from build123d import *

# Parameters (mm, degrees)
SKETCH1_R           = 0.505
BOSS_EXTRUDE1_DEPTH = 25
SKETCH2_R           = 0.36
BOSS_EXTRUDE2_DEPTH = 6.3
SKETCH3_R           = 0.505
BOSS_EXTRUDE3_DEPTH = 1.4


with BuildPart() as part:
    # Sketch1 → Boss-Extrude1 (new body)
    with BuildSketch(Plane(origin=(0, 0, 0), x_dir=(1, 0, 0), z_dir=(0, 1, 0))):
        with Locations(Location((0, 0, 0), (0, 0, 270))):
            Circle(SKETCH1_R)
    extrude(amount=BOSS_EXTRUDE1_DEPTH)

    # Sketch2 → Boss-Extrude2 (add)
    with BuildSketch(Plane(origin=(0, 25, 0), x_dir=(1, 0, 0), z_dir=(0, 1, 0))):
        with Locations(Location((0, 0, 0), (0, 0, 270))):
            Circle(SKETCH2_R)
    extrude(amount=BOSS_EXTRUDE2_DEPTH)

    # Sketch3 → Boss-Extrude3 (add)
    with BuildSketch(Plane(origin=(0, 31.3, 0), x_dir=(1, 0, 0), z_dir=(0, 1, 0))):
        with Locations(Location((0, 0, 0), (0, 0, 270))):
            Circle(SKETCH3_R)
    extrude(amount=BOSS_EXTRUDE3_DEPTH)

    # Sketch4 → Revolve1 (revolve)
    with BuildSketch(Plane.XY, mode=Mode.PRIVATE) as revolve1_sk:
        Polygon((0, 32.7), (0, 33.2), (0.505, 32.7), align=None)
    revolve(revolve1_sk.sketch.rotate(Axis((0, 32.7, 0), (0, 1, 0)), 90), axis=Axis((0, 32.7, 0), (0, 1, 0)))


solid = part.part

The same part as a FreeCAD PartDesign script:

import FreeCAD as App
import Part
import Sketcher
from FreeCAD import Vector


def add_polygon(sketch, points):
    """Adds a closed chain of lines whose ends are joined by coincident constraints."""
    first, n = sketch.GeometryCount, len(points)
    for a, b in zip(points, points[1:] + points[:1]):
        sketch.addGeometry(Part.LineSegment(App.Vector(*a, 0), App.Vector(*b, 0)), False)
    for i in range(n):
        sketch.addConstraint(Sketcher.Constraint("Coincident", first + i, 2, first + (i + 1) % n, 1))

doc = App.newDocument("Part")
params = doc.addObject("Spreadsheet::Sheet", "Params")
for row, (alias, value) in enumerate([
    ("sketch1_diameter", "1.01 mm"),
    ("pad1_length", "25 mm"),
    ("sketch2_diameter", "0.72 mm"),
    ("pad2_length", "6.3 mm"),
    ("sketch3_diameter", "1.01 mm"),
    ("pad3_length", "1.4 mm"),
    ("sketch4_height", "0.5 mm"),
    ("revolution_angle", "360 deg"),
], start=1):
    params.set(f"A{row}", alias)
    params.set(f"B{row}", "=" + value)
    params.setAlias(f"B{row}", alias)

body = doc.addObject("PartDesign::Body", "Body")

sketch1 = doc.addObject("Sketcher::SketchObject", "Sketch")
body.addObject(sketch1)
sketch1.AttachmentSupport = (doc.XZ_Plane, [""])
sketch1.MapMode = "FlatFace"
sketch1.addGeometry(Part.Circle(Vector(0, 0, 0), Vector(0, 0, 1), 0.505), False)
sketch1.addConstraint([
    Sketcher.Constraint("Coincident", 0, 3, -1, 1),
    Sketcher.Constraint("Diameter", 0, 1.01),
])
sketch1.setExpression("Constraints[1]", "Params.sketch1_diameter")
pad1 = doc.addObject("PartDesign::Pad", "Pad")
body.addObject(pad1)
pad1.Profile = sketch1
pad1.setExpression("Length", "Params.pad1_length")
pad1.Reversed = True

sketch2 = doc.addObject("Sketcher::SketchObject", "Sketch001")
body.addObject(sketch2)
sketch2.AttachmentSupport = (doc.XZ_Plane, [""])
sketch2.MapMode = "FlatFace"
sketch2.AttachmentOffset = App.Placement(Vector(0, 0, -25), App.Rotation())
sketch2.addGeometry(Part.Circle(Vector(0, 0, 0), Vector(0, 0, 1), 0.36), False)
sketch2.addConstraint([
    Sketcher.Constraint("Coincident", 0, 3, -1, 1),
    Sketcher.Constraint("Diameter", 0, 0.72),
])
sketch2.setExpression("Constraints[1]", "Params.sketch2_diameter")
pad2 = doc.addObject("PartDesign::Pad", "Pad001")
body.addObject(pad2)
pad2.Profile = sketch2
pad2.setExpression("Length", "Params.pad2_length")
pad2.Reversed = True

sketch3 = doc.addObject("Sketcher::SketchObject", "Sketch002")
body.addObject(sketch3)
sketch3.AttachmentSupport = (doc.XZ_Plane, [""])
sketch3.MapMode = "FlatFace"
sketch3.AttachmentOffset = App.Placement(Vector(0, 0, -31.3), App.Rotation())
sketch3.addGeometry(Part.Circle(Vector(0, 0, 0), Vector(0, 0, 1), 0.505), False)
sketch3.addConstraint([
    Sketcher.Constraint("Coincident", 0, 3, -1, 1),
    Sketcher.Constraint("Diameter", 0, 1.01),
])
sketch3.setExpression("Constraints[1]", "Params.sketch3_diameter")
pad3 = doc.addObject("PartDesign::Pad", "Pad002")
body.addObject(pad3)
pad3.Profile = sketch3
pad3.setExpression("Length", "Params.pad3_length")
pad3.Reversed = True

sketch4 = doc.addObject("Sketcher::SketchObject", "Sketch003")
body.addObject(sketch4)
sketch4.AttachmentSupport = (doc.XY_Plane, [""])
sketch4.MapMode = "FlatFace"
add_polygon(sketch4, [(0, 33.2), (0, 32.7), (0.505, 32.7)])
sketch4.addConstraint([
    Sketcher.Constraint("Vertical", 0),
    Sketcher.Constraint("Horizontal", 1),
    Sketcher.Constraint("PointOnObject", 0, 2, -2),
    Sketcher.Constraint("DistanceY", 0, 2, 0, 1, 0.5),
    Sketcher.Constraint("DistanceY", -1, 1, 0, 2, 32.7),
    Sketcher.Constraint("DistanceX", 1, 1, 1, 2, 0.505),
])
sketch4.setExpression("Constraints[6]", "Params.sketch4_height")
revolution = doc.addObject("PartDesign::Revolution", "Revolution")
body.addObject(revolution)
revolution.Profile = sketch4
revolution.ReferenceAxis = (sketch4, ["V_Axis"])
revolution.setExpression("Angle", "Params.revolution_angle")

doc.recompute()
